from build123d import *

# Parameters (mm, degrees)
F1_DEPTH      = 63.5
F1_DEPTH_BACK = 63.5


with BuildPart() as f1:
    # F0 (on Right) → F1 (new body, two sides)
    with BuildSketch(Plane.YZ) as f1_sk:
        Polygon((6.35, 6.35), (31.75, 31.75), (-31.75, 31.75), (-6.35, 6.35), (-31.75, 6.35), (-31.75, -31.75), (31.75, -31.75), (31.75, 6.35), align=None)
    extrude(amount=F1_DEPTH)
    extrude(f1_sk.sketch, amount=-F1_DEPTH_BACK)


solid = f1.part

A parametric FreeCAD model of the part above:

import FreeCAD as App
import Part
import Sketcher
Q = App.Units.Quantity

doc = App.newDocument("Part")
body = doc.addObject("PartDesign::Body", "Body")

sketch1 = body.newObject("Sketcher::SketchObject", "Sketch")
sketch1.AttachmentSupport = (doc.getObject("YZ_Plane"), [""])
sketch1.MapMode = "FlatFace"
sketch1.addGeometry(Part.LineSegment(App.Vector(6, 6, 0), App.Vector(32, 32, 0)), False)
sketch1.addGeometry(Part.LineSegment(App.Vector(32, 32, 0), App.Vector(-32, 32, 0)), False)
sketch1.addGeometry(Part.LineSegment(App.Vector(-32, 32, 0), App.Vector(-6, 6, 0)), False)
sketch1.addGeometry(Part.LineSegment(App.Vector(-6, 6, 0), App.Vector(-32, 6, 0)), False)
sketch1.addGeometry(Part.LineSegment(App.Vector(-32, 6, 0), App.Vector(-32, -32, 0)), False)
sketch1.addGeometry(Part.LineSegment(App.Vector(-32, -32, 0), App.Vector(32, -32, 0)), False)
sketch1.addGeometry(Part.LineSegment(App.Vector(32, -32, 0), App.Vector(32, 6, 0)), False)
sketch1.addGeometry(Part.LineSegment(App.Vector(32, 6, 0), App.Vector(6, 6, 0)), False)
sketch1.addConstraint(Sketcher.Constraint("Coincident", 0, 2, 1, 1))
sketch1.addConstraint(Sketcher.Constraint("Coincident", 1, 2, 2, 1))
sketch1.addConstraint(Sketcher.Constraint("Coincident", 2, 2, 3, 1))
sketch1.addConstraint(Sketcher.Constraint("Coincident", 3, 2, 4, 1))
sketch1.addConstraint(Sketcher.Constraint("Coincident", 4, 2, 5, 1))
sketch1.addConstraint(Sketcher.Constraint("Coincident", 5, 2, 6, 1))
sketch1.addConstraint(Sketcher.Constraint("Coincident", 6, 2, 7, 1))
sketch1.addConstraint(Sketcher.Constraint("Coincident", 7, 2, 0, 1))
sketch1.addConstraint(Sketcher.Constraint("Horizontal", 1))
sketch1.addConstraint(Sketcher.Constraint("Horizontal", 3))
sketch1.addConstraint(Sketcher.Constraint("Vertical", 4))
sketch1.addConstraint(Sketcher.Constraint("Horizontal", 5))
sketch1.addConstraint(Sketcher.Constraint("Vertical", 6))
sketch1.addConstraint(Sketcher.Constraint("Horizontal", 7))
sketch1.addConstraint(Sketcher.Constraint("Symmetric", 0, 2, 4, 2, -1, 1))
sketch1.addConstraint(Sketcher.Constraint("Symmetric", 3, 2, 6, 2, -2))
sketch1.addConstraint(Sketcher.Constraint("Perpendicular", 0, 2))
sketch1.addConstraint(Sketcher.Constraint("Vertical", 1, 2, 3, 2))
sketch1.addConstraint(Sketcher.Constraint("Equal", 3, 7))
sketch1.addConstraint(Sketcher.Constraint("DistanceX", 3, 2, 3, 1, Q("1 in")))
sketch1.addConstraint(Sketcher.Constraint("DistanceX", 1, 2, 1, 1, Q("2.5 in")))
sketch1.addConstraint(Sketcher.Constraint("DistanceY", 4, 2, 4, 1, Q("1.5 in")))
pad1 = body.newObject("PartDesign::Pad", "Pad")
pad1.Profile = sketch1
pad1.Type = "TwoLengths"
pad1.Length = Q("2.5 in")
pad1.Length2 = Q("2.5 in")

doc.recompute()
